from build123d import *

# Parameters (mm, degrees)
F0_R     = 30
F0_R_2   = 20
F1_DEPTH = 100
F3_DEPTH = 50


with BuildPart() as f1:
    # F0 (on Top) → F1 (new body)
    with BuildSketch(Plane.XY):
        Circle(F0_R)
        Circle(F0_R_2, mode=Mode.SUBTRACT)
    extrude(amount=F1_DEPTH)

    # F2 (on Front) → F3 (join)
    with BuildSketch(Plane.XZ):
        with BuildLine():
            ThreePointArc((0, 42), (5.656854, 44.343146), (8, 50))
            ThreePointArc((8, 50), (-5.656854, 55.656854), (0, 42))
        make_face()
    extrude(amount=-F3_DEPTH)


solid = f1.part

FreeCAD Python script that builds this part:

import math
import FreeCAD as App
import Part
import Sketcher
from FreeCAD import Vector

doc = App.newDocument("Part")
body = doc.addObject("PartDesign::Body", "Body")

sketch1 = body.newObject("Sketcher::SketchObject", "Sketch")
sketch1.AttachmentSupport = (doc.getObject("XY_Plane"), [""])
sketch1.MapMode = "FlatFace"
sketch1.addGeometry(Part.Circle(Vector(0, 0, 0), Vector(0, 0, 1), 30), False)
sketch1.addGeometry(Part.Circle(Vector(0, 0, 0), Vector(0, 0, 1), 20), False)
sketch1.addConstraint(Sketcher.Constraint("Coincident", 0, 3, -1, 1))
sketch1.addConstraint(Sketcher.Constraint("Coincident", 1, 3, -1, 1))
sketch1.addConstraint(Sketcher.Constraint("Diameter", 0, 60.0))
sketch1.addConstraint(Sketcher.Constraint("Diameter", 1, 40.0))
pad1 = body.newObject("PartDesign::Pad", "Pad")
pad1.Profile = sketch1
pad1.Length = 100

sketch2 = body.newObject("Sketcher::SketchObject", "Sketch001")
sketch2.AttachmentSupport = (doc.getObject("XZ_Plane"), [""])
sketch2.MapMode = "FlatFace"
sketch2.addGeometry(Part.ArcOfCircle(Part.Circle(Vector(0, 50, 0), Vector(0, 0, 1), 8), math.radians(-90), math.radians(0)), False)
sketch2.addGeometry(Part.ArcOfCircle(Part.Circle(Vector(0, 50, 0), Vector(0, 0, 1), 8), math.radians(0), math.radians(270)), False)
sketch2.addConstraint(Sketcher.Constraint("Tangent", 0, 1, 1, 2))
sketch2.addConstraint(Sketcher.Constraint("Coincident", 1, 1, 0, 2))
sketch2.addConstraint(Sketcher.Constraint("PointOnObject", 0, 3, -2))
sketch2.addConstraint(Sketcher.Constraint("PointOnObject", 0, 1, -2))
sketch2.addConstraint(Sketcher.Constraint("Horizontal", 0, 3, 1, 1))
sketch2.addConstraint(Sketcher.Constraint("Radius", 0, 8.000001))
sketch2.addConstraint(Sketcher.Constraint("DistanceY", -1, 1, 0, 3, 50.000001))
pad2 = body.newObject("PartDesign::Pad", "Pad001")
pad2.Profile = sketch2
pad2.Length = 50
pad2.Reversed = True

doc.recompute()
